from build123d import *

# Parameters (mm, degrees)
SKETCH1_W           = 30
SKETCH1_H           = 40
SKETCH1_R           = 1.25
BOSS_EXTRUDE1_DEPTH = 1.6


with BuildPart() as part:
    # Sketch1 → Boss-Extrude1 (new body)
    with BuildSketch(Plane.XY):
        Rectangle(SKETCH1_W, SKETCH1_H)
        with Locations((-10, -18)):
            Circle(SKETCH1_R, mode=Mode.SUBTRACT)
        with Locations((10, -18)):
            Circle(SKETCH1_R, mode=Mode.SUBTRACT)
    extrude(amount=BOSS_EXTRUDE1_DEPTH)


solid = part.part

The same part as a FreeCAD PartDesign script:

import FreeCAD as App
import Part
import Sketcher

V = App.Vector


def add_polygon(sketch, points):
    """Adds a closed chain of lines whose ends are joined by coincident constraints."""
    first, n = sketch.GeometryCount, len(points)
    for a, b in zip(points, points[1:] + points[:1]):
        sketch.addGeometry(Part.LineSegment(App.Vector(*a, 0), App.Vector(*b, 0)), False)
    for i in range(n):
        sketch.addConstraint(Sketcher.Constraint("Coincident", first + i, 2, first + (i + 1) % n, 1))

doc = App.newDocument("Part")
body = doc.addObject("PartDesign::Body", "Body")

sketch1 = body.newObject("Sketcher::SketchObject", "Sketch")
sketch1.AttachmentSupport = (doc.getObject("XY_Plane"), [""])
sketch1.MapMode = "FlatFace"
add_polygon(sketch1, [(-15, 20), (-15, -20), (15, -20), (15, 20)])
sketch1.addGeometry(Part.Circle(V(-10, -18, 0), V(0, 0, 1), 1.2), False)
sketch1.addGeometry(Part.Circle(V(10, -18, 0), V(0, 0, 1), 1.2), False)
sketch1.addConstraint([
    Sketcher.Constraint("Vertical", 0),
    Sketcher.Constraint("Horizontal", 1),
    Sketcher.Constraint("Vertical", 2),
    Sketcher.Constraint("Horizontal", 3),
    Sketcher.Constraint("Equal", 4, 5),
    Sketcher.Constraint("Symmetric", 0, 2, 2, 2, -1, 1),
    Sketcher.Constraint("Symmetric", 4, 3, 5, 3, -2),
    Sketcher.Constraint("Diameter", 4, 2.5),
    Sketcher.Constraint("DistanceX", 1, 1, 1, 2, 30.0),
    Sketcher.Constraint("DistanceY", 0, 2, 0, 1, 40.0),
    Sketcher.Constraint("DistanceX", 4, 3, -1, 1, 10.0),
    Sketcher.Constraint("DistanceY", 4, 3, -1, 1, 18.0),
])
pad1 = body.newObject("PartDesign::Pad", "Pad")
pad1.Profile = sketch1
pad1.Length = 1.6

doc.recompute()
